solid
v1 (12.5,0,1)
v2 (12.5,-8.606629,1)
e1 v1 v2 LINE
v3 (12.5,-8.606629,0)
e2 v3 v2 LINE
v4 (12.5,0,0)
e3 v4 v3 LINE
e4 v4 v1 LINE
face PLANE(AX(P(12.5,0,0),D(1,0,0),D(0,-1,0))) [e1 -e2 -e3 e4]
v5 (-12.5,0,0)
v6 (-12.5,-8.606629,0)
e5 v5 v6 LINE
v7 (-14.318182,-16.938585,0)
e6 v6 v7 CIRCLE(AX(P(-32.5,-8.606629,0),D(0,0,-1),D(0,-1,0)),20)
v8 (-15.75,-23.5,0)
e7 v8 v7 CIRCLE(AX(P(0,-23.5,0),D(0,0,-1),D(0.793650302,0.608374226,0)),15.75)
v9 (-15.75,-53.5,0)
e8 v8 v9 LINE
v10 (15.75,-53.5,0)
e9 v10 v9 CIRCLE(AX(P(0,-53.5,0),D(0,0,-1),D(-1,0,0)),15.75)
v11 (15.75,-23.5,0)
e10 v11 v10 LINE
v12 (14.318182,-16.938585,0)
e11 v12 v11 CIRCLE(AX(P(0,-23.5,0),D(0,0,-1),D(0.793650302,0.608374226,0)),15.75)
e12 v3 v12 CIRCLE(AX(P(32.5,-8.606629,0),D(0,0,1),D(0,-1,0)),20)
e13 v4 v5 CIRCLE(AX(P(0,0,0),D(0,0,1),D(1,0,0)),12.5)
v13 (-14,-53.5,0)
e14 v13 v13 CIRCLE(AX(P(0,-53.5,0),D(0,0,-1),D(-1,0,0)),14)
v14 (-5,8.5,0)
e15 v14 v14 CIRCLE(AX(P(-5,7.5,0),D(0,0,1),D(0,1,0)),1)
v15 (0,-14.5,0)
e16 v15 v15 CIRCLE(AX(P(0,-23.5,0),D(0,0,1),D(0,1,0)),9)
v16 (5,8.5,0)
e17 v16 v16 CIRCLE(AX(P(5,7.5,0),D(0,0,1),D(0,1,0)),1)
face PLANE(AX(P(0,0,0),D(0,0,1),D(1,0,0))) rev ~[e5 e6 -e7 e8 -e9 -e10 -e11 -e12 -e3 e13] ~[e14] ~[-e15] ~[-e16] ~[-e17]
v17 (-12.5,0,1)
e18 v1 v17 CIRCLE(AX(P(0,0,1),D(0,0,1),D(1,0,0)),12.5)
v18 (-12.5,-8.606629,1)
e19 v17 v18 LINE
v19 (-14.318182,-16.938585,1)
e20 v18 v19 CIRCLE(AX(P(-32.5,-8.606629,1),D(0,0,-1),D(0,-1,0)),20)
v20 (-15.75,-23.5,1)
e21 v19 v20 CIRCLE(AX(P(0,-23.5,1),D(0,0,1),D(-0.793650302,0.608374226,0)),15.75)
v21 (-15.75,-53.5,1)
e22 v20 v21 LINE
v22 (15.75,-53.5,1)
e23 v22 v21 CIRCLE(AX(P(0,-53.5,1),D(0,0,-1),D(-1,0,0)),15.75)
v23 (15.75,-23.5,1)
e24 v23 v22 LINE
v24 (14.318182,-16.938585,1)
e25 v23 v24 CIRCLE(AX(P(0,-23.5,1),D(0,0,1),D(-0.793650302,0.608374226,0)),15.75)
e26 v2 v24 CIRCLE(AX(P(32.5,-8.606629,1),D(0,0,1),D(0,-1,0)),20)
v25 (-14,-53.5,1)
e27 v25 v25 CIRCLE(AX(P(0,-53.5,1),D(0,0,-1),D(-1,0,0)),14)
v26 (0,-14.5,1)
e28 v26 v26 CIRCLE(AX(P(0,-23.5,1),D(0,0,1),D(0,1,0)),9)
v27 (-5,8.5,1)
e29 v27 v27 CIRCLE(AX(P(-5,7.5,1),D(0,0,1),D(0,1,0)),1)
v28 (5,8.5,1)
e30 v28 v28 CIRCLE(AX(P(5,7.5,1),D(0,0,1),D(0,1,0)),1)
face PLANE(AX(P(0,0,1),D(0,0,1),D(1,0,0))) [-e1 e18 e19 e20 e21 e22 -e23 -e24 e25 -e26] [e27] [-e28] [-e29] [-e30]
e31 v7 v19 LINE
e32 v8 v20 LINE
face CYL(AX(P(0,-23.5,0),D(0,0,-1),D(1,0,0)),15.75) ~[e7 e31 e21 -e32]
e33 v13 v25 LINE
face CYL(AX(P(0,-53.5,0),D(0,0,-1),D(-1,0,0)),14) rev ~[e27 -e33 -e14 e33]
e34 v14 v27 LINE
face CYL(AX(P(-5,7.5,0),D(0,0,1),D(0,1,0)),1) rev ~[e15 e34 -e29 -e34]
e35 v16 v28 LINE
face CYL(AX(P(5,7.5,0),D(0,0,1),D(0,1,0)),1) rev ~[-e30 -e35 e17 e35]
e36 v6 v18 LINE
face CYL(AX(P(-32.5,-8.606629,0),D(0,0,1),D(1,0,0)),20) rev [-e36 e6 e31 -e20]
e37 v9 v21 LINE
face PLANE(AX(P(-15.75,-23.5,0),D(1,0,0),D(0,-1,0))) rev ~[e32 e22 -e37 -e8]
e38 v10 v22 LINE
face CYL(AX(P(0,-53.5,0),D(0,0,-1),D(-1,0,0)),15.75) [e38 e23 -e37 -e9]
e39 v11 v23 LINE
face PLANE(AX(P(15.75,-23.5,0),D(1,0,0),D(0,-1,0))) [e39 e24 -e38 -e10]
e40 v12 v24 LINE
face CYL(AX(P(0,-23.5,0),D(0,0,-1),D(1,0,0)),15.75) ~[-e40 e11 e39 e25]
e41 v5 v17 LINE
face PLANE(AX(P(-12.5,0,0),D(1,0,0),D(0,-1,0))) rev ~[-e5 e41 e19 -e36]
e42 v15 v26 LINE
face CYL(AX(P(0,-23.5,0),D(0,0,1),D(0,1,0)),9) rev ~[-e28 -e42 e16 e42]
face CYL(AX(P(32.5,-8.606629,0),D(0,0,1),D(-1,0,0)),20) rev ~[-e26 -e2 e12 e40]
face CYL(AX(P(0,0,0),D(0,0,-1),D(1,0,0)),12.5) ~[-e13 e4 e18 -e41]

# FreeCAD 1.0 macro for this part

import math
import FreeCAD as App
import Part
import Sketcher

V = App.Vector
Q = App.Units.Quantity


def edges_at(feature, points):
    """Names of the edges that pass closest to the given points."""
    edges = feature.Shape.Edges
    near = lambda p: min(range(len(edges)), key=lambda i: edges[i].distToShape(Part.Vertex(*p))[0])
    return sorted({f"Edge{near(p) + 1}" for p in points})

doc = App.newDocument("Part")
body = doc.addObject("PartDesign::Body", "Body")

# Sketch on XY plane
sketch1 = body.newObject("Sketcher::SketchObject", "Sketch")
sketch1.AttachmentSupport = (doc.getObject("XY_Plane"), [""])
sketch1.MapMode = "FlatFace"
sketch1.addGeometry([
    Part.ArcOfCircle(Part.Circle(V(0, 0, 0), V(0, 0, 1), 12), math.radians(0), math.radians(180)),
    Part.LineSegment(V(-12, 0, 0), V(-12, -14, 0)),
    Part.ArcOfCircle(Part.Circle(V(0, -24, 0), V(0, 0, 1), 16), math.radians(143), math.radians(397)),
    Part.LineSegment(V(12, -14, 0), V(12, 0, 0)),
], False)
sketch1.addConstraint([
    Sketcher.Constraint("Tangent", 0, 2, 1, 1),
    Sketcher.Constraint("Coincident", 1, 2, 2, 1),
    Sketcher.Constraint("Coincident", 2, 2, 3, 1),
    Sketcher.Constraint("Tangent", 3, 2, 0, 1),
    Sketcher.Constraint("Vertical", 1),
    Sketcher.Constraint("Vertical", 3),
    Sketcher.Constraint("Coincident", 0, 3, -1, 1),
    Sketcher.Constraint("PointOnObject", 2, 3, -2),
    Sketcher.Constraint("Radius", 0, Q("12.5 mm")),
    Sketcher.Constraint("Radius", 2, Q("15.75 mm")),
    Sketcher.Constraint("DistanceY", 2, 3, -1, 1, Q("23.5 mm")),
])
pad1 = body.newObject("PartDesign::Pad", "Pad")
pad1.Profile = sketch1
pad1.Length = 1

# Sketch on XY plane
sketch2 = body.newObject("Sketcher::SketchObject", "Sketch001")
sketch2.AttachmentSupport = (doc.getObject("XY_Plane"), [""])
sketch2.MapMode = "FlatFace"
sketch2.addGeometry([
    Part.Circle(V(5, 7.5, 0), V(0, 0, 1), 1),
    Part.Circle(V(-5, 7.5, 0), V(0, 0, 1), 1),
], False)
sketch2.addConstraint([
    Sketcher.Constraint("Equal", 0, 1),
    Sketcher.Constraint("Symmetric", 0, 3, 1, 3, -2),
    Sketcher.Constraint("Diameter", 0, Q("2 mm")),
    Sketcher.Constraint("DistanceX", -1, 1, 0, 3, Q("5 mm")),
    Sketcher.Constraint("DistanceY", -1, 1, 0, 3, Q("7.5 mm")),
])
doc.recompute()
hole = body.newObject("PartDesign::Hole", "Hole")
hole.Profile = sketch2
hole.ThreadType = "None"
hole.Diameter = 2
hole.DepthType = "Dimension"
hole.Depth = 8
hole.DrillPoint = "Angled"
hole.DrillPointAngle = 118
hole.Reversed = True

# Sketch on XY plane
sketch3 = body.newObject("Sketcher::SketchObject", "Sketch002")
sketch3.AttachmentSupport = (doc.getObject("XY_Plane"), [""])
sketch3.MapMode = "FlatFace"
sketch3.addGeometry(Part.Circle(V(0, -24, 0), V(0, 0, 1), 9), False)
sketch3.addConstraint([
    Sketcher.Constraint("PointOnObject", 0, 3, -2),
    Sketcher.Constraint("Diameter", 0, Q("18 mm")),
    Sketcher.Constraint("DistanceY", 0, 3, -1, 1, Q("23.5 mm")),
])
doc.recompute()
hole2 = body.newObject("PartDesign::Hole", "Hole001")
hole2.Profile = sketch3
hole2.ThreadType = "None"
hole2.Diameter = 18
hole2.DepthType = "ThroughAll"
hole2.Reversed = True

# Sketch on XY plane
sketch4 = body.newObject("Sketcher::SketchObject", "Sketch003")
sketch4.AttachmentSupport = (doc.getObject("XY_Plane"), [""])
sketch4.MapMode = "FlatFace"
sketch4.addGeometry([
    Part.LineSegment(V(16, -24, 0), V(16, -54, 0)),  # 0
    Part.ArcOfCircle(Part.Circle(V(0, -54, 0), V(0, 0, 1), 16), math.radians(180), math.radians(360)),  # 1
    Part.LineSegment(V(-16, -54, 0), V(-16, -24, 0)),  # 2
    Part.ArcOfCircle(Part.Circle(V(0, -24, 0), V(0, 0, 1), 16), math.radians(180), math.radians(360)),  # 3
    Part.Circle(V(0, -54, 0), V(0, 0, 1), 14),  # 4
], False)
sketch4.addConstraint([
    Sketcher.Constraint("Tangent", 0, 2, 1, 2),
    Sketcher.Constraint("Tangent", 1, 1, 2, 1),
    Sketcher.Constraint("Tangent", 2, 2, 3, 1),
    Sketcher.Constraint("Tangent", 3, 2, 0, 1),
    Sketcher.Constraint("Vertical", 0),
    Sketcher.Constraint("Vertical", 2),
    Sketcher.Constraint("Coincident", 4, 3, 1, 3),
    Sketcher.Constraint("PointOnObject", 1, 3, -2),
    Sketcher.Constraint("Diameter", 4, Q("28 mm")),
    Sketcher.Constraint("DistanceY", 0, 2, 0, 1, Q("30 mm")),
    Sketcher.Constraint("Radius", 1, Q("15.75 mm")),
    Sketcher.Constraint("DistanceY", 1, 3, -1, 1, Q("53.5 mm")),
])
pad2 = body.newObject("PartDesign::Pad", "Pad001")
pad2.Profile = sketch4
pad2.Length = 1
doc.recompute()

fillet = body.newObject("PartDesign::Fillet", "Fillet")
fillet.Base = (pad2, edges_at(pad2, [(12.5, -13.918, 0.5), (-12.5, -13.918, 0.5)]))
fillet.Radius = 20

doc.recompute()
